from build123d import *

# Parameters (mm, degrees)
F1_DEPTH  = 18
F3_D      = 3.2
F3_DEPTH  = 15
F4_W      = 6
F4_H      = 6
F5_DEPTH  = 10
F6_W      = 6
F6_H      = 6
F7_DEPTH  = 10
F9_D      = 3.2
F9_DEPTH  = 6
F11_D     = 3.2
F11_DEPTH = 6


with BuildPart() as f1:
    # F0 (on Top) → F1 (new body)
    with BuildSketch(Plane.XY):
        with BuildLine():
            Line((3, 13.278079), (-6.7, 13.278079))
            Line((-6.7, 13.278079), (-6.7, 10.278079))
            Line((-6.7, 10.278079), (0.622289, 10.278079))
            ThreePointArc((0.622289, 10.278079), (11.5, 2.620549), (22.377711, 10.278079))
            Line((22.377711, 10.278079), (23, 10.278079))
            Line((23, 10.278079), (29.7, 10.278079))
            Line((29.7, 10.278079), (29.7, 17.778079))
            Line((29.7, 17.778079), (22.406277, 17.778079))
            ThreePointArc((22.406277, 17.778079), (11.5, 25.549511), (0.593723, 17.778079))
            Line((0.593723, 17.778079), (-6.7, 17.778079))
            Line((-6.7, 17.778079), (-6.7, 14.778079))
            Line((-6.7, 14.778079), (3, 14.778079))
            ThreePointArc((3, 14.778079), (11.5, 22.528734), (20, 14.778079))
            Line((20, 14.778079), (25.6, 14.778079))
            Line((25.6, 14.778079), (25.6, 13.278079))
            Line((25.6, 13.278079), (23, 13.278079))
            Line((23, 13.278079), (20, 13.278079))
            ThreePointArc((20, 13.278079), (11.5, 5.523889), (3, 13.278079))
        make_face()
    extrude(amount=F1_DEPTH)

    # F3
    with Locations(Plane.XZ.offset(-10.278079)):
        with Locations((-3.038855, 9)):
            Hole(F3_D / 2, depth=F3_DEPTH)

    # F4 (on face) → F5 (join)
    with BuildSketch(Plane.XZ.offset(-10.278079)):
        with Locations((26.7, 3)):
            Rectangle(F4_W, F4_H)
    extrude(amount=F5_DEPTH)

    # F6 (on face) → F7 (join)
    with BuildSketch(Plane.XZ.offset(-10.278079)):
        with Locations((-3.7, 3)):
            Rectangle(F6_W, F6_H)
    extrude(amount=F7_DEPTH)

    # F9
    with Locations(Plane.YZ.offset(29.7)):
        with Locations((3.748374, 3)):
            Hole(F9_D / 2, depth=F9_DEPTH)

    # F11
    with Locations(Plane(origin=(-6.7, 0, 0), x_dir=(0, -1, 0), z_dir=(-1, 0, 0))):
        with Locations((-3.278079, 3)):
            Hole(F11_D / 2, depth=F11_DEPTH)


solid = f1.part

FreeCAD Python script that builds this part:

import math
import FreeCAD as App
import Part
import Sketcher

V = App.Vector


def add_polygon(sketch, points):
    """Adds a closed chain of lines whose ends are joined by coincident constraints."""
    first, n = sketch.GeometryCount, len(points)
    for a, b in zip(points, points[1:] + points[:1]):
        sketch.addGeometry(Part.LineSegment(App.Vector(*a, 0), App.Vector(*b, 0)), False)
    for i in range(n):
        sketch.addConstraint(Sketcher.Constraint("Coincident", first + i, 2, first + (i + 1) % n, 1))

doc = App.newDocument("Part")
body = doc.addObject("PartDesign::Body", "Body")

# Sketch on XY plane
sketch1 = body.newObject("Sketcher::SketchObject", "Sketch")
sketch1.AttachmentSupport = (doc.getObject("XY_Plane"), [""])
sketch1.MapMode = "FlatFace"
sketch1.addGeometry(Part.LineSegment(V(3, 13.3, 0), V(-6.7, 13.3, 0)), False)
sketch1.addGeometry(Part.LineSegment(V(-6.7, 13.3, 0), V(-6.7, 10.3, 0)), False)
sketch1.addGeometry(Part.LineSegment(V(-6.7, 10.3, 0), V(0.6, 10.3, 0)), False)
sketch1.addGeometry(Part.ArcOfCircle(Part.Circle(V(11.5, 14.2, 0), V(0, 0, 1), 11.6), math.radians(-160), math.radians(-20)), False)
sketch1.addGeometry(Part.LineSegment(V(22.4, 10.3, 0), V(29.7, 10.3, 0)), False)
sketch1.addGeometry(Part.LineSegment(V(29.7, 10.3, 0), V(29.7, 17.8, 0)), False)
sketch1.addGeometry(Part.LineSegment(V(29.7, 17.8, 0), V(22.4, 17.8, 0)), False)
sketch1.addGeometry(Part.ArcOfCircle(Part.Circle(V(11.5, 14, 0), V(0, 0, 1), 11.5), math.radians(19), math.radians(161)), False)
sketch1.addGeometry(Part.LineSegment(V(0.6, 17.8, 0), V(-6.7, 17.8, 0)), False)
sketch1.addGeometry(Part.LineSegment(V(-6.7, 17.8, 0), V(-6.7, 14.8, 0)), False)
sketch1.addGeometry(Part.LineSegment(V(-6.7, 14.8, 0), V(3, 14.8, 0)), False)
sketch1.addGeometry(Part.ArcOfCircle(Part.Circle(V(11.5, 14, 0), V(0, 0, 1), 8.5), math.radians(5), math.radians(175)), False)
sketch1.addGeometry(Part.LineSegment(V(20, 14.8, 0), V(25.6, 14.8, 0)), False)
sketch1.addGeometry(Part.LineSegment(V(25.6, 14.8, 0), V(25.6, 13.3, 0)), False)
sketch1.addGeometry(Part.LineSegment(V(25.6, 13.3, 0), V(20, 13.3, 0)), False)
sketch1.addGeometry(Part.ArcOfCircle(Part.Circle(V(11.5, 14.1, 0), V(0, 0, 1), 8.5), math.radians(-175), math.radians(-5)), False)
sketch1.addConstraint(Sketcher.Constraint("Coincident", 0, 2, 1, 1))
sketch1.addConstraint(Sketcher.Constraint("Coincident", 1, 2, 2, 1))
sketch1.addConstraint(Sketcher.Constraint("Coincident", 2, 2, 3, 1))
sketch1.addConstraint(Sketcher.Constraint("Coincident", 3, 2, 4, 1))
sketch1.addConstraint(Sketcher.Constraint("Coincident", 4, 2, 5, 1))
sketch1.addConstraint(Sketcher.Constraint("Coincident", 5, 2, 6, 1))
sketch1.addConstraint(Sketcher.Constraint("Coincident", 6, 2, 7, 1))
sketch1.addConstraint(Sketcher.Constraint("Coincident", 7, 2, 8, 1))
sketch1.addConstraint(Sketcher.Constraint("Coincident", 8, 2, 9, 1))
sketch1.addConstraint(Sketcher.Constraint("Coincident", 9, 2, 10, 1))
sketch1.addConstraint(Sketcher.Constraint("Coincident", 10, 2, 11, 2))
sketch1.addConstraint(Sketcher.Constraint("Coincident", 11, 1, 12, 1))
sketch1.addConstraint(Sketcher.Constraint("Coincident", 12, 2, 13, 1))
sketch1.addConstraint(Sketcher.Constraint("Coincident", 13, 2, 14, 1))
sketch1.addConstraint(Sketcher.Constraint("Coincident", 14, 2, 15, 2))
sketch1.addConstraint(Sketcher.Constraint("Coincident", 15, 1, 0, 1))
sketch1.addConstraint(Sketcher.Constraint("Horizontal", 0))
sketch1.addConstraint(Sketcher.Constraint("Vertical", 1))
sketch1.addConstraint(Sketcher.Constraint("Horizontal", 2))
sketch1.addConstraint(Sketcher.Constraint("Horizontal", 4))
sketch1.addConstraint(Sketcher.Constraint("Vertical", 5))
sketch1.addConstraint(Sketcher.Constraint("Horizontal", 6))
sketch1.addConstraint(Sketcher.Constraint("Horizontal", 8))
sketch1.addConstraint(Sketcher.Constraint("Vertical", 9))
sketch1.addConstraint(Sketcher.Constraint("Horizontal", 10))
sketch1.addConstraint(Sketcher.Constraint("Horizontal", 12))
sketch1.addConstraint(Sketcher.Constraint("Vertical", 13))
sketch1.addConstraint(Sketcher.Constraint("Horizontal", 14))
sketch1.addConstraint(Sketcher.Constraint("Horizontal", 2, 2, 3, 2))
sketch1.addConstraint(Sketcher.Constraint("Horizontal", 6, 2, 7, 2))
sketch1.addConstraint(Sketcher.Constraint("Horizontal", 10, 2, 11, 1))
sketch1.addConstraint(Sketcher.Constraint("Horizontal", 0, 2, 13, 2))
sketch1.addConstraint(Sketcher.Constraint("Vertical", 3, 3, 7, 3))
sketch1.addConstraint(Sketcher.Constraint("Vertical", 7, 3, 11, 3))
sketch1.addConstraint(Sketcher.Constraint("Vertical", 11, 3, 15, 3))
sketch1.addConstraint(Sketcher.Constraint("Vertical", 1, 2, 8, 2))
sketch1.addConstraint(Sketcher.Constraint("Vertical", 11, 1, 14, 2))
sketch1.addConstraint(Sketcher.Constraint("Equal", 2, 4))
sketch1.addConstraint(Sketcher.Constraint("Equal", 1, 9))
sketch1.addConstraint(Sketcher.Constraint("DistanceY", 1, 2, 1, 1, 3.0))
sketch1.addConstraint(Sketcher.Constraint("DistanceX", 0, 2, 0, 1, 9.7))
sketch1.addConstraint(Sketcher.Constraint("DistanceX", 12, 1, 12, 2, 5.6))
sketch1.addConstraint(Sketcher.Constraint("DistanceY", 5, 1, 5, 2, 7.5))
sketch1.addConstraint(Sketcher.Constraint("DistanceX", -1, 1, 10, 2, 3.0))
sketch1.addConstraint(Sketcher.Constraint("DistanceX", -1, 1, 11, 1, 20.0))
sketch1.addConstraint(Sketcher.Constraint("Radius", 3, 11.554794))
sketch1.addConstraint(Sketcher.Constraint("Radius", 7, 11.538545))
sketch1.addConstraint(Sketcher.Constraint("Radius", 11, 8.536224))
sketch1.addConstraint(Sketcher.Constraint("Radius", 15, 8.535867))
sketch1.addConstraint(Sketcher.Constraint("DistanceX", 2, 1, 2, 2, 7.322289))
sketch1.addConstraint(Sketcher.Constraint("DistanceX", 6, 2, 6, 1, 7.293723))
sketch1.addConstraint(Sketcher.Constraint("DistanceY", -1, 1, 11, 3, 13.99251))
pad1 = body.newObject("PartDesign::Pad", "Pad")
pad1.Profile = sketch1
pad1.Length = 18

# Sketch on XZ plane
sketch2 = body.newObject("Sketcher::SketchObject", "Sketch001")
sketch2.AttachmentSupport = (doc.getObject("XZ_Plane"), [""])
sketch2.MapMode = "FlatFace"
sketch2.AttachmentOffset = App.Placement(V(0, 0, -10.278079), App.Rotation())
sketch2.addGeometry(Part.Circle(V(-3, 9, 0), V(0, 0, 1), 1.6), False)
sketch2.addConstraint(Sketcher.Constraint("Diameter", 0, 3.2))
sketch2.addConstraint(Sketcher.Constraint("DistanceY", -1, 1, 0, 3, 9.0))
sketch2.addConstraint(Sketcher.Constraint("DistanceX", 0, 3, -1, 1, 3.038855))
doc.recompute()
hole = body.newObject("PartDesign::Hole", "Hole")
hole.Profile = sketch2
hole.ThreadType = "None"
hole.Diameter = 3.2
hole.DepthType = "Dimension"
hole.Depth = 15
hole.DrillPoint = "Flat"

# Sketch on XZ plane
sketch3 = body.newObject("Sketcher::SketchObject", "Sketch002")
sketch3.AttachmentSupport = (doc.getObject("XZ_Plane"), [""])
sketch3.MapMode = "FlatFace"
sketch3.AttachmentOffset = App.Placement(V(0, 0, -10.278079), App.Rotation())
add_polygon(sketch3, [(24, 6), (24, 0), (30, 0), (30, 6)])  # lines 0-3
sketch3.addConstraint(Sketcher.Constraint("Vertical", 0))
sketch3.addConstraint(Sketcher.Constraint("Horizontal", 1))
sketch3.addConstraint(Sketcher.Constraint("Vertical", 2))
sketch3.addConstraint(Sketcher.Constraint("Horizontal", 3))
sketch3.addConstraint(Sketcher.Constraint("PointOnObject", 0, 2, -1))
sketch3.addConstraint(Sketcher.Constraint("Equal", 3, 0))
sketch3.addConstraint(Sketcher.Constraint("DistanceX", 1, 1, 1, 2, 6.0))
sketch3.addConstraint(Sketcher.Constraint("DistanceX", -1, 1, 0, 2, 23.7))
pad2 = body.newObject("PartDesign::Pad", "Pad001")
pad2.Profile = sketch3
pad2.Length = 10

# Sketch on XZ plane
sketch4 = body.newObject("Sketcher::SketchObject", "Sketch003")
sketch4.AttachmentSupport = (doc.getObject("XZ_Plane"), [""])
sketch4.MapMode = "FlatFace"
sketch4.AttachmentOffset = App.Placement(V(0, 0, -10.278079), App.Rotation())
add_polygon(sketch4, [(-7, 6), (-7, 0), (-1, 0), (-1, 6)])  # lines 0-3
sketch4.addConstraint(Sketcher.Constraint("Vertical", 0))
sketch4.addConstraint(Sketcher.Constraint("Horizontal", 1))
sketch4.addConstraint(Sketcher.Constraint("Vertical", 2))
sketch4.addConstraint(Sketcher.Constraint("Horizontal", 3))
sketch4.addConstraint(Sketcher.Constraint("PointOnObject", 0, 2, -1))
sketch4.addConstraint(Sketcher.Constraint("Equal", 3, 0))
sketch4.addConstraint(Sketcher.Constraint("DistanceX", 1, 1, 1, 2, 6.0))
sketch4.addConstraint(Sketcher.Constraint("DistanceX", 0, 2, -1, 1, 6.7))
pad3 = body.newObject("PartDesign::Pad", "Pad002")
pad3.Profile = sketch4
pad3.Length = 10

# Sketch on YZ plane
sketch5 = body.newObject("Sketcher::SketchObject", "Sketch004")
sketch5.AttachmentSupport = (doc.getObject("YZ_Plane"), [""])
sketch5.MapMode = "FlatFace"
sketch5.AttachmentOffset = App.Placement(V(0, 0, 29.7), App.Rotation())
sketch5.addGeometry(Part.Circle(V(3.7, 3, 0), V(0, 0, 1), 1.6), False)
sketch5.addConstraint(Sketcher.Constraint("Diameter", 0, 3.2))
sketch5.addConstraint(Sketcher.Constraint("DistanceY", -1, 1, 0, 3, 3.0))
sketch5.addConstraint(Sketcher.Constraint("DistanceX", -1, 1, 0, 3, 3.748374))
doc.recompute()
hole2 = body.newObject("PartDesign::Hole", "Hole001")
hole2.Profile = sketch5
hole2.ThreadType = "None"
hole2.Diameter = 3.2
hole2.DepthType = "Dimension"
hole2.Depth = 6
hole2.DrillPoint = "Flat"

# Sketch on YZ plane
sketch6 = body.newObject("Sketcher::SketchObject", "Sketch005")
sketch6.AttachmentSupport = (doc.getObject("YZ_Plane"), [""])
sketch6.MapMode = "FlatFace"
sketch6.AttachmentOffset = App.Placement(V(0, 0, -6.7), App.Rotation())
sketch6.addGeometry(Part.Circle(V(3.3, 3, 0), V(0, 0, 1), 1.6), False)
sketch6.addConstraint(Sketcher.Constraint("Diameter", 0, 3.2))
sketch6.addConstraint(Sketcher.Constraint("DistanceY", -1, 1, 0, 3, 3.0))
sketch6.addConstraint(Sketcher.Constraint("DistanceX", -1, 1, 0, 3, 3.278079))
doc.recompute()
hole3 = body.newObject("PartDesign::Hole", "Hole002")
hole3.Profile = sketch6
hole3.ThreadType = "None"
hole3.Diameter = 3.2
hole3.DepthType = "Dimension"
hole3.Depth = 6
hole3.DrillPoint = "Flat"
hole3.Reversed = True

doc.recompute()
